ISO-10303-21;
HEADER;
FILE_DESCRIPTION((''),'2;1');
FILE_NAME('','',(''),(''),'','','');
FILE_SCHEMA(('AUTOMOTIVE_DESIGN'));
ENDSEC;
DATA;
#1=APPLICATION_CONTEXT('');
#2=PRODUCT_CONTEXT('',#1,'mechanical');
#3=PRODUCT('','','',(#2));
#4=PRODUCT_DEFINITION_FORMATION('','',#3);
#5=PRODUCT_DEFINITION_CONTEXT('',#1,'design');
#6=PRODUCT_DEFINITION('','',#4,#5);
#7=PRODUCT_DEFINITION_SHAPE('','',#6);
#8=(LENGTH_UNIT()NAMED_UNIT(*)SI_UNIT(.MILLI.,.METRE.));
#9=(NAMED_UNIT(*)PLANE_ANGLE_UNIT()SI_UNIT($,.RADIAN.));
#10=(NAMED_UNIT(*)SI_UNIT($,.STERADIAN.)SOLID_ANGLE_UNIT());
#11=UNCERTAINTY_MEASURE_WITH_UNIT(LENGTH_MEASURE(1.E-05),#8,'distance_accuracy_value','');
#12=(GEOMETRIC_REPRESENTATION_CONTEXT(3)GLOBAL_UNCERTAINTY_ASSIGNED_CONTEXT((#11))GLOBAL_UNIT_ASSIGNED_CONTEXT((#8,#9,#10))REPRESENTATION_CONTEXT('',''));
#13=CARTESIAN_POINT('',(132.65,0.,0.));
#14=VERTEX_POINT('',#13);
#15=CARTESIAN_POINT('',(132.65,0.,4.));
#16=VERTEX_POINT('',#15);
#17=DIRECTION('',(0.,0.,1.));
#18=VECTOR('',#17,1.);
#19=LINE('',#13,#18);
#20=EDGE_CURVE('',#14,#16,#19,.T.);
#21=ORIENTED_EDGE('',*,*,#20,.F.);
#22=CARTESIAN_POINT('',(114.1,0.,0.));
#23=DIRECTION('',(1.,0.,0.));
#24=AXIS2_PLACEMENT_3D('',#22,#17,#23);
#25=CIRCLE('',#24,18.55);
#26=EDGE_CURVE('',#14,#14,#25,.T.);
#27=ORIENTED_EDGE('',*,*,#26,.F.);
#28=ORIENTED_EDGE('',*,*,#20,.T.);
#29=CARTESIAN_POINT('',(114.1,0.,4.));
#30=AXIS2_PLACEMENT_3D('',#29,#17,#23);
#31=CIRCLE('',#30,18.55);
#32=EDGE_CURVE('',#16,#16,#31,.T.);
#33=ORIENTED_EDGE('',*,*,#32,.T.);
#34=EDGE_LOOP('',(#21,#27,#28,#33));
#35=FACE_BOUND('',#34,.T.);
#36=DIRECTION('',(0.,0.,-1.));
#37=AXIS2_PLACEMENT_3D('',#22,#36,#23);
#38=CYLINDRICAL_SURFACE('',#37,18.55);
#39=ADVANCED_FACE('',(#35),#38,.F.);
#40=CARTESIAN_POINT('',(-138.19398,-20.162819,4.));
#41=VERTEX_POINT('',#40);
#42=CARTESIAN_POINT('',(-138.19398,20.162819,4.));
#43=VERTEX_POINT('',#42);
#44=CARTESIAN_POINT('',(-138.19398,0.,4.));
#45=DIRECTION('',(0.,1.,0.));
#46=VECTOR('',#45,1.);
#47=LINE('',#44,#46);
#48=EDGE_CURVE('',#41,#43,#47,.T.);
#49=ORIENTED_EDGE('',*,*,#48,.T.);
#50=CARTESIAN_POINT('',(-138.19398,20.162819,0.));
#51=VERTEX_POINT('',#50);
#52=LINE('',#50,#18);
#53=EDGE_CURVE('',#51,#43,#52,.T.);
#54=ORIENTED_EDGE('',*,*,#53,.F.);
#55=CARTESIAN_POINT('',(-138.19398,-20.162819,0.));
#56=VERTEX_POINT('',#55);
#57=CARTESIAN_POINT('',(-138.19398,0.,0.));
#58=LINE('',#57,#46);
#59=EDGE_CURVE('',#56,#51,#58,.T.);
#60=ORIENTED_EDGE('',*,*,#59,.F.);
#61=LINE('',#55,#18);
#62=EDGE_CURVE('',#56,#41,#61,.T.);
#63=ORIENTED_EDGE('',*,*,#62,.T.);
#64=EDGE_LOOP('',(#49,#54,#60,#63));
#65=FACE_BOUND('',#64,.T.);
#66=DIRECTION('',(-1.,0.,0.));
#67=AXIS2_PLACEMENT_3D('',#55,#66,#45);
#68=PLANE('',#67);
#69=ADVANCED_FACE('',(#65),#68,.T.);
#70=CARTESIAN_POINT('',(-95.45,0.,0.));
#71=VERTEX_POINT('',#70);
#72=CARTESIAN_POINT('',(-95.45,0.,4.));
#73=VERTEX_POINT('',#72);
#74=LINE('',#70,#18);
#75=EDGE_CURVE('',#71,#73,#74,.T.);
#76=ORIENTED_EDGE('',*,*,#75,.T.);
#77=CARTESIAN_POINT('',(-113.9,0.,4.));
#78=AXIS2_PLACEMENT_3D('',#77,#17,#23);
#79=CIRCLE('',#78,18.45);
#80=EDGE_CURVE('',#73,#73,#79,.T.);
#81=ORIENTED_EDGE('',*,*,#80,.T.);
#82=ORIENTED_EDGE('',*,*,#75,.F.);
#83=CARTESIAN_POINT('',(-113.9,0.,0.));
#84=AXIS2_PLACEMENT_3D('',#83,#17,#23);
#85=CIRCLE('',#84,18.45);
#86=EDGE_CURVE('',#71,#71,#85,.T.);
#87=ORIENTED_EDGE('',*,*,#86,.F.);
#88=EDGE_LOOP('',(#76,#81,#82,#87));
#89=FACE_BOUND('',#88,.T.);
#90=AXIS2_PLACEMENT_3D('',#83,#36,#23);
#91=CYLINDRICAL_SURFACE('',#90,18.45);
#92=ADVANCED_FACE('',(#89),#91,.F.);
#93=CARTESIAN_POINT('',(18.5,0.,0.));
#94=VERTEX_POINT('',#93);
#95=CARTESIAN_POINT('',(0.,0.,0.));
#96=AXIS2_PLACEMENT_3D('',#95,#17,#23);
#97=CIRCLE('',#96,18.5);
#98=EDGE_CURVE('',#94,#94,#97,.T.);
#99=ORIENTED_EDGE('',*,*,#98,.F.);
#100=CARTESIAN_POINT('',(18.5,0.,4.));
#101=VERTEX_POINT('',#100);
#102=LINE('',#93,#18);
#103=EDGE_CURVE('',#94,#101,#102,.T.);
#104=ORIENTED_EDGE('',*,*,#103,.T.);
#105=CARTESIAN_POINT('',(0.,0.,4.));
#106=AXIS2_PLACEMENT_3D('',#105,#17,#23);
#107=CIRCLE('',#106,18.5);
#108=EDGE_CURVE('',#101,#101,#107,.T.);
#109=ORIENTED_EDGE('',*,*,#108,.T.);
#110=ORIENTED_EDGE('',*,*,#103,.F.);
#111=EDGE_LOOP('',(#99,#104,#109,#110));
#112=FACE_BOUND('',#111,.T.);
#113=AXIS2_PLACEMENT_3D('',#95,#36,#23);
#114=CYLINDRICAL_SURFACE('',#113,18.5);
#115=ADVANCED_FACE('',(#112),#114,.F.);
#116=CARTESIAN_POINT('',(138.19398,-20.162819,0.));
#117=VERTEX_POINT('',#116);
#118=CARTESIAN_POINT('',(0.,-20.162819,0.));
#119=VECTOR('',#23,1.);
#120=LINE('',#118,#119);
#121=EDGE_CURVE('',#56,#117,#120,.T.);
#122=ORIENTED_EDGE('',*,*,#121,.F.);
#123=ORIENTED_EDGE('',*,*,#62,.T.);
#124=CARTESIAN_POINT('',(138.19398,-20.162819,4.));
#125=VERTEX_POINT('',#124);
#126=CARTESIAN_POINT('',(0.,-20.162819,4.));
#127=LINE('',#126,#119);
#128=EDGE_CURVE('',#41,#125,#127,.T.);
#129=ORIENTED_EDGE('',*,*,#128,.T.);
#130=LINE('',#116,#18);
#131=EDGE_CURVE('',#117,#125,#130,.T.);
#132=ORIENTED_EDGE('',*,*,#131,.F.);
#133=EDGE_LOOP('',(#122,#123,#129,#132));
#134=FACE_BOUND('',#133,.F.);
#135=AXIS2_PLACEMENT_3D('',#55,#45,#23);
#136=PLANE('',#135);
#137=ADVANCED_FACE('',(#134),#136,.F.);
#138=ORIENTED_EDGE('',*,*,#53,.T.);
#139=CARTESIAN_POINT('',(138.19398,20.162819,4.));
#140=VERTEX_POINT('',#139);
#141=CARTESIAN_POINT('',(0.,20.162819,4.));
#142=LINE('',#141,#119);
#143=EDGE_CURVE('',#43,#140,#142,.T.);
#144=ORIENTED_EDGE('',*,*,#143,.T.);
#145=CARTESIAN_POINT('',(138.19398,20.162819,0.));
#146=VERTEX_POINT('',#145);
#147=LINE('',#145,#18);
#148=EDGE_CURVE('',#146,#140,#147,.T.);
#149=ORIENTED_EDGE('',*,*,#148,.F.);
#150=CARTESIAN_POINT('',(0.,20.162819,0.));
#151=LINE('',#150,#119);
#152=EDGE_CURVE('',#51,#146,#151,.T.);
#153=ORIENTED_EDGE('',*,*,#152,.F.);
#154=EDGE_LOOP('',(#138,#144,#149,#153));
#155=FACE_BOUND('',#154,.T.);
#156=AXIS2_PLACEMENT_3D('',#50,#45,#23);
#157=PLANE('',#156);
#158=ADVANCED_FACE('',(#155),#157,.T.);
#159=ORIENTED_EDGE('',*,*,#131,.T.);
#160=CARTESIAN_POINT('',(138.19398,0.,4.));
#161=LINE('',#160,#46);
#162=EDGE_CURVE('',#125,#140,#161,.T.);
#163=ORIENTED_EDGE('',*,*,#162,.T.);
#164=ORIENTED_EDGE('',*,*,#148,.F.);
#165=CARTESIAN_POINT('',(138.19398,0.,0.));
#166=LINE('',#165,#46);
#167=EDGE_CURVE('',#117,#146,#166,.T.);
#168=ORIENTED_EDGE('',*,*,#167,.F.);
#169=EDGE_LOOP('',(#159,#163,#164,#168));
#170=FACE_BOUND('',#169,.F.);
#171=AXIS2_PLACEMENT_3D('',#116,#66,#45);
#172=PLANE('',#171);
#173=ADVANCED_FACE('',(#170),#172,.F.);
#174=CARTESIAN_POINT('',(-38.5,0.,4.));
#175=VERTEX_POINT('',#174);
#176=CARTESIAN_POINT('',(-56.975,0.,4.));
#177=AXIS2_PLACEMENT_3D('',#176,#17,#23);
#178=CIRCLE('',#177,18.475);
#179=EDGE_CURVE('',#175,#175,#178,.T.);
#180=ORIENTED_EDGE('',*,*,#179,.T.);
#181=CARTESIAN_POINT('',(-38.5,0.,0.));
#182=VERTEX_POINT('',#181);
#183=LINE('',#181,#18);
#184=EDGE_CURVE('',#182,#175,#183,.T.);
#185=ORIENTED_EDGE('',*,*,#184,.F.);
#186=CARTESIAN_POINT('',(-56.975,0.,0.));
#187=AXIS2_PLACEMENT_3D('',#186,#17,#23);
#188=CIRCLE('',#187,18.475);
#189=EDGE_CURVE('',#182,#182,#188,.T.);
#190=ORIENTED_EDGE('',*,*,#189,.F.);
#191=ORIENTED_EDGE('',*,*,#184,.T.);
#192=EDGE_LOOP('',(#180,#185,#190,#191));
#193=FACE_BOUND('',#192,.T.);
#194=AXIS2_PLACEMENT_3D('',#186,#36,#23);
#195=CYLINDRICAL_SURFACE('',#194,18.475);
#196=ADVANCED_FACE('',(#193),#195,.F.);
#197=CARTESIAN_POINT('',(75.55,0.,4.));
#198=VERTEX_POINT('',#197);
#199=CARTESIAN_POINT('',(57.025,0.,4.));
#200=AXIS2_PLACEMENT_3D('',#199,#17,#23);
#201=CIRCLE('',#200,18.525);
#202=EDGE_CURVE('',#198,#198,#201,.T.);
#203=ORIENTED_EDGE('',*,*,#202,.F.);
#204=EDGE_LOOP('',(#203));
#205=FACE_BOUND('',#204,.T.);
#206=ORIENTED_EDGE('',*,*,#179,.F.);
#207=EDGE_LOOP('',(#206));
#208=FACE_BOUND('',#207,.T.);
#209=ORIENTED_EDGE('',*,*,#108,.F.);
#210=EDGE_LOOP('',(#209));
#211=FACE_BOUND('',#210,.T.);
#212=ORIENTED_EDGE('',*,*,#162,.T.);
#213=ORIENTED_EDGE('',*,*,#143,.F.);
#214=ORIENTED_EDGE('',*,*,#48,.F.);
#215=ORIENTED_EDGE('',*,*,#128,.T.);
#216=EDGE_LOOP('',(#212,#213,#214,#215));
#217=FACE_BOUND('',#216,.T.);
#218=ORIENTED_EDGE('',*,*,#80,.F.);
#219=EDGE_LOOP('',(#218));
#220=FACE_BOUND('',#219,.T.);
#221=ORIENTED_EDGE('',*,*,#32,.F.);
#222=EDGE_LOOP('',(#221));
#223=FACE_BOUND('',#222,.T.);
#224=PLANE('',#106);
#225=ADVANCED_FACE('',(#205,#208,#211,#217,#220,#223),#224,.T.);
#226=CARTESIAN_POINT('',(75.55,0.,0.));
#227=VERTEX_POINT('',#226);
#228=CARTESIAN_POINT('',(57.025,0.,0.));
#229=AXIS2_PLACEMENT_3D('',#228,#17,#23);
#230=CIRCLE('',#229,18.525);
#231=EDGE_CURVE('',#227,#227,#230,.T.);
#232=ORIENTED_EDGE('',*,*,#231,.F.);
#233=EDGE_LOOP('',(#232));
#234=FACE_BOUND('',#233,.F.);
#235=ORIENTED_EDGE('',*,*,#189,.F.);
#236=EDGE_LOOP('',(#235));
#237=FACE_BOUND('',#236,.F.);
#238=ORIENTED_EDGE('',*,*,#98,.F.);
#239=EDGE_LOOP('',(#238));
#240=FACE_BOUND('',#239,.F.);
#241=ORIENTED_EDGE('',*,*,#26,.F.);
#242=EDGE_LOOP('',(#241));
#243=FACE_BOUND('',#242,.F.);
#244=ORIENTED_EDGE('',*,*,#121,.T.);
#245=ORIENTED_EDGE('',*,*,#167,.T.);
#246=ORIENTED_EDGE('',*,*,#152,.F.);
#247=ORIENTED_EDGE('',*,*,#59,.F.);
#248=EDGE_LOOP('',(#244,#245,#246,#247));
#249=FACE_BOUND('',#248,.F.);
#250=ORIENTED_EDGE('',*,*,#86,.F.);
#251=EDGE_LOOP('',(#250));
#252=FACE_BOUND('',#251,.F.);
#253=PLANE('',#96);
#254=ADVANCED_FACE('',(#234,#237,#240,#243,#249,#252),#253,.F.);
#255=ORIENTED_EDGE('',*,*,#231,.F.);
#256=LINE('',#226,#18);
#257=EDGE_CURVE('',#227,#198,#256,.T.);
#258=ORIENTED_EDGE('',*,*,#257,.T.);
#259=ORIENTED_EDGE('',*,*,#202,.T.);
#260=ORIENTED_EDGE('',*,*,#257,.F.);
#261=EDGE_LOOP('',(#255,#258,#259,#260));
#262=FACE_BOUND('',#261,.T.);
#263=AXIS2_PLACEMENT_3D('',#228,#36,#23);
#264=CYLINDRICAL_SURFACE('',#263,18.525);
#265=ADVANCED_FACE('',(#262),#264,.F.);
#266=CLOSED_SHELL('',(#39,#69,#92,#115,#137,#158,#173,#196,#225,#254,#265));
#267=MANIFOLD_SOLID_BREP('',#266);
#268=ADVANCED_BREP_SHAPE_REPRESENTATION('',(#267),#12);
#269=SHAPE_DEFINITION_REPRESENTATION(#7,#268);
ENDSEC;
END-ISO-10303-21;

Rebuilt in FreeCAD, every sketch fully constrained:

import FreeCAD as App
import Part
import Sketcher


def add_polygon(sketch, points):
    """Adds a closed chain of lines whose ends are joined by coincident constraints."""
    first, n = sketch.GeometryCount, len(points)
    for a, b in zip(points, points[1:] + points[:1]):
        sketch.addGeometry(Part.LineSegment(App.Vector(*a, 0), App.Vector(*b, 0)), False)
    for i in range(n):
        sketch.addConstraint(Sketcher.Constraint("Coincident", first + i, 2, first + (i + 1) % n, 1))

doc = App.newDocument("Part")
body = doc.addObject("PartDesign::Body", "Body")

# Sketch on XY plane
sketch1 = doc.addObject("Sketcher::SketchObject", "Sketch")
body.addObject(sketch1)
sketch1.AttachmentSupport = (doc.XY_Plane, [""])
sketch1.MapMode = "FlatFace"
add_polygon(sketch1, [(-138, 20), (-138, -20), (138, -20), (138, 20)])  # lines 0-3
sketch1.addGeometry(Part.Circle(App.Vector(-114, 0, 0), App.Vector(0, 0, 1), 18), False)  # 4
sketch1.addGeometry(Part.Circle(App.Vector(-57, 0, 0), App.Vector(0, 0, 1), 18), False)  # 5
sketch1.addGeometry(Part.Circle(App.Vector(0, 0, 0), App.Vector(0, 0, 1), 18), False)  # 6
sketch1.addGeometry(Part.Circle(App.Vector(57, 0, 0), App.Vector(0, 0, 1), 19), False)  # 7
sketch1.addGeometry(Part.Circle(App.Vector(114, 0, 0), App.Vector(0, 0, 1), 19), False)  # 8
sketch1.addConstraint(Sketcher.Constraint("Vertical", 0))
sketch1.addConstraint(Sketcher.Constraint("Horizontal", 1))
sketch1.addConstraint(Sketcher.Constraint("Vertical", 2))
sketch1.addConstraint(Sketcher.Constraint("Horizontal", 3))
sketch1.addConstraint(Sketcher.Constraint("Coincident", 6, 3, -1, 1))
sketch1.addConstraint(Sketcher.Constraint("Symmetric", 0, 2, 2, 2, -1, 1))
sketch1.addConstraint(Sketcher.Constraint("PointOnObject", 4, 3, -1))
sketch1.addConstraint(Sketcher.Constraint("PointOnObject", 5, 3, -1))
sketch1.addConstraint(Sketcher.Constraint("PointOnObject", 7, 3, -1))
sketch1.addConstraint(Sketcher.Constraint("PointOnObject", 8, 3, -1))
sketch1.addConstraint(Sketcher.Constraint("Diameter", 6, 37.0))
sketch1.addConstraint(Sketcher.Constraint("Diameter", 4, 36.9))
sketch1.addConstraint(Sketcher.Constraint("Diameter", 8, 37.1))
sketch1.addConstraint(Sketcher.Constraint("Diameter", 5, 36.95))
sketch1.addConstraint(Sketcher.Constraint("Diameter", 7, 37.05))
sketch1.addConstraint(Sketcher.Constraint("DistanceX", 5, 3, 7, 3, 114.0))
sketch1.addConstraint(Sketcher.Constraint("DistanceX", 4, 3, 8, 3, 228.0))
sketch1.addConstraint(Sketcher.Constraint("DistanceX", 4, 3, -1, 1, 113.9))
sketch1.addConstraint(Sketcher.Constraint("DistanceX", 5, 3, -1, 1, 56.975))
sketch1.addConstraint(Sketcher.Constraint("DistanceX", 1, 1, 1, 2, 276.38796))
sketch1.addConstraint(Sketcher.Constraint("DistanceY", 0, 2, 0, 1, 40.325638))
pad1 = doc.addObject("PartDesign::Pad", "Pad")
body.addObject(pad1)
pad1.Profile = sketch1
pad1.Length = 4

doc.recompute()
